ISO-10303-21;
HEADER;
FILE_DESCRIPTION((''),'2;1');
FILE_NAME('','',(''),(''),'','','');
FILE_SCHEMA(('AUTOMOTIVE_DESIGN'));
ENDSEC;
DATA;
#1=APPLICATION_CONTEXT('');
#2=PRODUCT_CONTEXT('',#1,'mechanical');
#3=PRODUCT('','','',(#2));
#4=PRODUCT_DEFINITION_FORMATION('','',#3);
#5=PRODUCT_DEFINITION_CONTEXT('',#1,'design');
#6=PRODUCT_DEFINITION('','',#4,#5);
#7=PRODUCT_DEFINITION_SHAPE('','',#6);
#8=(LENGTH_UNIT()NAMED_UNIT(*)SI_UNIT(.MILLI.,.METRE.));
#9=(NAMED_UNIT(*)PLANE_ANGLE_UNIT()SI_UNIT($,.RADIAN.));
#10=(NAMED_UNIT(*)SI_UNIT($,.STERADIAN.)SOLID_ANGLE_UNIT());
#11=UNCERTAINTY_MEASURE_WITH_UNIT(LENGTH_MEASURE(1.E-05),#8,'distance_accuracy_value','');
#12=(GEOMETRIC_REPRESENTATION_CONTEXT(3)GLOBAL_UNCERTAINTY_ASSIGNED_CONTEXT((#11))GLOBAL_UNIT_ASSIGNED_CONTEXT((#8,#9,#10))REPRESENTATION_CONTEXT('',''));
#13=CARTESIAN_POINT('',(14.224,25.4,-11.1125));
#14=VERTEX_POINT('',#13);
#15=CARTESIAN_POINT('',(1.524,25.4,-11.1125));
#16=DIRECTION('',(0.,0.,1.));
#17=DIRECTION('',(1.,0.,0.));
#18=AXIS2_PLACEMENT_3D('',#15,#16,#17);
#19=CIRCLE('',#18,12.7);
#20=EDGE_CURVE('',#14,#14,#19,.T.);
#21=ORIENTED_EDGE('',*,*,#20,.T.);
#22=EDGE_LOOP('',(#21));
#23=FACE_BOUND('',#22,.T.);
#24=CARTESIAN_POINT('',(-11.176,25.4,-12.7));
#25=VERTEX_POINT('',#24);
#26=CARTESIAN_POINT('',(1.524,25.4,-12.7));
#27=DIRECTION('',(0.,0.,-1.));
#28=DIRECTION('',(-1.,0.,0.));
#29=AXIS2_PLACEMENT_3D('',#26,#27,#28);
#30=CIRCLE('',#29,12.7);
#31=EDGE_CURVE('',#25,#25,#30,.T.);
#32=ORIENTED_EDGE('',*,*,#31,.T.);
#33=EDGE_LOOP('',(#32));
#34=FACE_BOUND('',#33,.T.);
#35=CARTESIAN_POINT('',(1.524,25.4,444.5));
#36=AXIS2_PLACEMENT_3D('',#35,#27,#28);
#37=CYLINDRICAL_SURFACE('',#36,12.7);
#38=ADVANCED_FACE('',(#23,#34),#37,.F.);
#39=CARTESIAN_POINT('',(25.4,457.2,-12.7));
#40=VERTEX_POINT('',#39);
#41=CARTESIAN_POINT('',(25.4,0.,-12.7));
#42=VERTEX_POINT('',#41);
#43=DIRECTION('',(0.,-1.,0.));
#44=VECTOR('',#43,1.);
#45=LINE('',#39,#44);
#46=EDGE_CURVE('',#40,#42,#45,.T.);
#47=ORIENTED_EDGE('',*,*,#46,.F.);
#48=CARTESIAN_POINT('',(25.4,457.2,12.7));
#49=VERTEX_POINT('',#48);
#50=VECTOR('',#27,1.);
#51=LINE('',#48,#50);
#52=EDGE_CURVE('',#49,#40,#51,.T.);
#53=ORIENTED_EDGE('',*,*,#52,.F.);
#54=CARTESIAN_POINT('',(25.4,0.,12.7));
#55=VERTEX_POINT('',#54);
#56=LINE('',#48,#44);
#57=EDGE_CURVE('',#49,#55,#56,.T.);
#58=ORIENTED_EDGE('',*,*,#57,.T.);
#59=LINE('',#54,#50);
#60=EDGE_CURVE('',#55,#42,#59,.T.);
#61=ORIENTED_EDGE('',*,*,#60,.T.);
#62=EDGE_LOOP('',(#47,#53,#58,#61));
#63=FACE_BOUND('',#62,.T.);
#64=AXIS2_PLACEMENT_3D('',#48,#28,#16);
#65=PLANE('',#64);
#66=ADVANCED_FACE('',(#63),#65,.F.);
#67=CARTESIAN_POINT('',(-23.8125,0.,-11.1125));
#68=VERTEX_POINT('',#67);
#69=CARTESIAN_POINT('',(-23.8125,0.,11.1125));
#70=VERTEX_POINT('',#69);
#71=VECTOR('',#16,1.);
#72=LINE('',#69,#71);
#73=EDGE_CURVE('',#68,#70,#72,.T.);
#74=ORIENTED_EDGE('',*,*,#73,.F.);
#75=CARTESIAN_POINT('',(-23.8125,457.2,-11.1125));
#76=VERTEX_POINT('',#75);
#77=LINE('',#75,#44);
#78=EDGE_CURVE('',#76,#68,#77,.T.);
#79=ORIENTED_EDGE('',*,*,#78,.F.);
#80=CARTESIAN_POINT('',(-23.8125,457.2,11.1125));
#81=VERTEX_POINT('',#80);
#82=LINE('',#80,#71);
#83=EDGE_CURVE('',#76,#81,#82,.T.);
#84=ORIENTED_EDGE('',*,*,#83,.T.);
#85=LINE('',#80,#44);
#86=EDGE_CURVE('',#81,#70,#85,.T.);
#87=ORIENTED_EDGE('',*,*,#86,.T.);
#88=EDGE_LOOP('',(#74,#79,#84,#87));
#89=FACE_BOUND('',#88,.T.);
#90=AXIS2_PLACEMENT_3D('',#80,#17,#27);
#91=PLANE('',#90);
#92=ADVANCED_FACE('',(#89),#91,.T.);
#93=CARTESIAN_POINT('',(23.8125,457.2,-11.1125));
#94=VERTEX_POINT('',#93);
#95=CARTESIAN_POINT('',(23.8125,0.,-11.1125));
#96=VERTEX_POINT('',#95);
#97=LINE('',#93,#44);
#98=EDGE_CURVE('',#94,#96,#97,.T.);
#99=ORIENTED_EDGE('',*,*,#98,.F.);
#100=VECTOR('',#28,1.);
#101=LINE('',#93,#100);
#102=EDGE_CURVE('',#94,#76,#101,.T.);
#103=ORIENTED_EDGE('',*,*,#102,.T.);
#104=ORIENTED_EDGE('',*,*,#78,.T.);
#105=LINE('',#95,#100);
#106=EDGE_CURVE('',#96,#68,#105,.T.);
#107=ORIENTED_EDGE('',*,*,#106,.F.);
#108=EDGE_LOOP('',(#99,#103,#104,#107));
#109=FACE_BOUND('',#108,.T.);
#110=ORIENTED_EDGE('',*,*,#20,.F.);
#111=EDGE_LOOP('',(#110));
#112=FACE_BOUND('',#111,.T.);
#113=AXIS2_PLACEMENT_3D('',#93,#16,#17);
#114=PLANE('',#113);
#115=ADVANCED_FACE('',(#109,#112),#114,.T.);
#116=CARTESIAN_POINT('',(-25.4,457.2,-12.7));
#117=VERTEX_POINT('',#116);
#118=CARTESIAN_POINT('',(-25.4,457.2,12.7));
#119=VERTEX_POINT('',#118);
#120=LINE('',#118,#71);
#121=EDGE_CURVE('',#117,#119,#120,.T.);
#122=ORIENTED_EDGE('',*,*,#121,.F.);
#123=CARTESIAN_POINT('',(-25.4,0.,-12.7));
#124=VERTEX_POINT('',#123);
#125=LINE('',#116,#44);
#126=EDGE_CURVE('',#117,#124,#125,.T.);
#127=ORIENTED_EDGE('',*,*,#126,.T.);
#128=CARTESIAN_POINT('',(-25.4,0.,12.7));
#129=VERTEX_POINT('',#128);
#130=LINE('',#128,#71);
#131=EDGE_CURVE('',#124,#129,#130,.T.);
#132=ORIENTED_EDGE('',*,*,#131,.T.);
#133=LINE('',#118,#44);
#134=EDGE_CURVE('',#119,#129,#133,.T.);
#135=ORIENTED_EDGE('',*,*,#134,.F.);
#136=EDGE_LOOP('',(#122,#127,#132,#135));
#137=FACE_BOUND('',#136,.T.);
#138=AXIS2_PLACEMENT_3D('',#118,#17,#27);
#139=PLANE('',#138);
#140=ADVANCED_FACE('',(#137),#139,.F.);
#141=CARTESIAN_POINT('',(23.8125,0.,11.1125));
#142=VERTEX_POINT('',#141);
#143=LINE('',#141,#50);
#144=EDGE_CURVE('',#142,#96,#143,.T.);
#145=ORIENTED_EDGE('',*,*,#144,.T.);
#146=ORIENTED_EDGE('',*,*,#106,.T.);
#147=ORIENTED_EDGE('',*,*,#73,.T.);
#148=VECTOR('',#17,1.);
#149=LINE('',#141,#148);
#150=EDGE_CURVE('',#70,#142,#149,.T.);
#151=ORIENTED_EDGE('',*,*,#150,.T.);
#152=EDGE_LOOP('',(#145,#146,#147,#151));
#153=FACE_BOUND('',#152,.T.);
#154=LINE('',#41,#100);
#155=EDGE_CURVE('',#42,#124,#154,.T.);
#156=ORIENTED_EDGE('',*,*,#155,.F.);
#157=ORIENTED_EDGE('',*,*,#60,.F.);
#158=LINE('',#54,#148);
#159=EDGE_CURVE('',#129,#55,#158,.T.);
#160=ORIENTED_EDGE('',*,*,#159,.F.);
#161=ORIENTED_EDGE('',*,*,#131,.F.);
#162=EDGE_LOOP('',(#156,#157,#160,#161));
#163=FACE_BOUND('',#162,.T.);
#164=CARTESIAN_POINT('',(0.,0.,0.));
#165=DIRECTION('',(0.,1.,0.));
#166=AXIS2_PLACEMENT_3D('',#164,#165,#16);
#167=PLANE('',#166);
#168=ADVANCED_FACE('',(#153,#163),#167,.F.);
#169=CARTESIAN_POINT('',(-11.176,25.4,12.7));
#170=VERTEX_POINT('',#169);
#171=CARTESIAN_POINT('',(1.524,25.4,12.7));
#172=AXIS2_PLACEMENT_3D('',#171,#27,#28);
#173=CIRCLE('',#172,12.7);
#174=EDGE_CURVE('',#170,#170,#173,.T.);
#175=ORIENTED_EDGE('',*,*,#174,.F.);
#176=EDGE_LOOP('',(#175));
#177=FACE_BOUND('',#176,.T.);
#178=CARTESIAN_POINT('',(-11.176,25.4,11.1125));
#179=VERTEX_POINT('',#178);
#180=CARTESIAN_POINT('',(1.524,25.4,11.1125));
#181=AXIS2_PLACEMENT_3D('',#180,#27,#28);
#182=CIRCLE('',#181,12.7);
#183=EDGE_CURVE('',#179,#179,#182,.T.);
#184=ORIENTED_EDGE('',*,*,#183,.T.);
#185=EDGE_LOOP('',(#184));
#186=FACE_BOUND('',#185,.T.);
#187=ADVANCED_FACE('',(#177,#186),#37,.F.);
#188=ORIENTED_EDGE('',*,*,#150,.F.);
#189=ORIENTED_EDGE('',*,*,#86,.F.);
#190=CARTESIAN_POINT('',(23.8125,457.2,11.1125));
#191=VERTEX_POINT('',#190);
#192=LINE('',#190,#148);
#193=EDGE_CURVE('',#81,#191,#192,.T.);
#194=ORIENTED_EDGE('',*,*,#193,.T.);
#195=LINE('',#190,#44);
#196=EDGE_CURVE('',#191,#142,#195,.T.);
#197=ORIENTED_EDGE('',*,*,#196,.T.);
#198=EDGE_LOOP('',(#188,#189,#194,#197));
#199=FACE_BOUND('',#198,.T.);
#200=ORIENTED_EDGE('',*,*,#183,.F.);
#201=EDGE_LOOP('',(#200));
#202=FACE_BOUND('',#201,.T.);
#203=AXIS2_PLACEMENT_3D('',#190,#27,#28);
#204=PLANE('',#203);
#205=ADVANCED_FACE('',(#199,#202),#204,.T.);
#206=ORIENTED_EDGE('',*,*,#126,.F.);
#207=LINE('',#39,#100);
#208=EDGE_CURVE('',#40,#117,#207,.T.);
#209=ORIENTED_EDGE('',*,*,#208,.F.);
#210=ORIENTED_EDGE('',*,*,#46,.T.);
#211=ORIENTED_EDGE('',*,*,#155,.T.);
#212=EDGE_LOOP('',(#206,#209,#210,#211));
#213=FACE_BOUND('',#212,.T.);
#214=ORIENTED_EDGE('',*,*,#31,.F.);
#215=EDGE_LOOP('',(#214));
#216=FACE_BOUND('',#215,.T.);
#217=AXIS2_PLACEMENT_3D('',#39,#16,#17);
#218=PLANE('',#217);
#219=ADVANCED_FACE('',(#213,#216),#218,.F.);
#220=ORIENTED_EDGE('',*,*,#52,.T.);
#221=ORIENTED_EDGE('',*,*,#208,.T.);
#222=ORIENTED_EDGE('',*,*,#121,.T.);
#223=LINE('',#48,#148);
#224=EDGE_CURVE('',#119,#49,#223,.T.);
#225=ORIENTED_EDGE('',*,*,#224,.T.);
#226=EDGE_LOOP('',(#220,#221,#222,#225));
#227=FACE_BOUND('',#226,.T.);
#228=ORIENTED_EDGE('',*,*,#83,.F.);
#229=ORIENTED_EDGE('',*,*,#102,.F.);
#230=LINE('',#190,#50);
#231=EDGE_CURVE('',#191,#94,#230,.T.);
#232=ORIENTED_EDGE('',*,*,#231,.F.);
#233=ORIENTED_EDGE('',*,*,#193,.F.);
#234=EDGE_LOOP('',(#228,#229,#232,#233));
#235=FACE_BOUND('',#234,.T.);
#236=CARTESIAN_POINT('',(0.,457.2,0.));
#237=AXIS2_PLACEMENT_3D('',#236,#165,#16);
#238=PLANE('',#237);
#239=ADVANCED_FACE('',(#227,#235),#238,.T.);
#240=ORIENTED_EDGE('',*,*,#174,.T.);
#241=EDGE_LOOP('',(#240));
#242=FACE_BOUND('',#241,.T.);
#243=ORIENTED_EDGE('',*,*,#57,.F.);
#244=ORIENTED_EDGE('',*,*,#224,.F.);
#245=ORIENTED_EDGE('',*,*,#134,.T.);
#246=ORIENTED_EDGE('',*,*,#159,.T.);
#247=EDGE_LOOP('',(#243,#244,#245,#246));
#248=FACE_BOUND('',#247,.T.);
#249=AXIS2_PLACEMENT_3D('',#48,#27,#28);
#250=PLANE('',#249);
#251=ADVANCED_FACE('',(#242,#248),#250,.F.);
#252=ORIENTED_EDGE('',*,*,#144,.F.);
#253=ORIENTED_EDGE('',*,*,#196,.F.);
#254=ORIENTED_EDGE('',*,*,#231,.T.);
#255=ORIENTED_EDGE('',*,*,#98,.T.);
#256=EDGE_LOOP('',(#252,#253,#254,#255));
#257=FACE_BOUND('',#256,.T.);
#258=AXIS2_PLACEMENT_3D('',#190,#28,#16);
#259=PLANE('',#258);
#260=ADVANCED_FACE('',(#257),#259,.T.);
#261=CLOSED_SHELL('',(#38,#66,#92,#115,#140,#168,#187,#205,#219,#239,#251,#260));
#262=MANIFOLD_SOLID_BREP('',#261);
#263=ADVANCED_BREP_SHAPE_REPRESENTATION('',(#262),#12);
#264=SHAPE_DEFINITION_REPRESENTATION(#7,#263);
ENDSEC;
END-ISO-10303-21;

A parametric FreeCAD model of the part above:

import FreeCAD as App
import Part
import Sketcher
Q = App.Units.Quantity

doc = App.newDocument("Part")
body = doc.addObject("PartDesign::Body", "Body")

# Sketch on XZ plane
sketch1 = body.newObject("Sketcher::SketchObject", "Sketch")
sketch1.AttachmentSupport = (doc.getObject("XZ_Plane"), [""])
sketch1.MapMode = "FlatFace"
sketch1.addGeometry([
    Part.LineSegment(App.Vector(-25, -13, 0), App.Vector(-25, 13, 0)),  # 0
    Part.LineSegment(App.Vector(-25, 13, 0), App.Vector(25, 13, 0)),  # 1
    Part.LineSegment(App.Vector(25, 13, 0), App.Vector(25, -13, 0)),  # 2
    Part.LineSegment(App.Vector(25, -13, 0), App.Vector(-25, -13, 0)),  # 3
    Part.LineSegment(App.Vector(24, 11, 0), App.Vector(-24, 11, 0)),  # 4
    Part.LineSegment(App.Vector(-24, 11, 0), App.Vector(-24, -11, 0)),  # 5
    Part.LineSegment(App.Vector(-24, -11, 0), App.Vector(24, -11, 0)),  # 6
    Part.LineSegment(App.Vector(24, -11, 0), App.Vector(24, 11, 0)),  # 7
], False)
sketch1.addConstraint([
    Sketcher.Constraint("Coincident", 0, 2, 1, 1),
    Sketcher.Constraint("Coincident", 1, 2, 2, 1),
    Sketcher.Constraint("Coincident", 2, 2, 3, 1),
    Sketcher.Constraint("Coincident", 3, 2, 0, 1),
    Sketcher.Constraint("Coincident", 4, 2, 5, 1),
    Sketcher.Constraint("Coincident", 5, 2, 6, 1),
    Sketcher.Constraint("Coincident", 6, 2, 7, 1),
    Sketcher.Constraint("Coincident", 7, 2, 4, 1),
    Sketcher.Constraint("Vertical", 0),
    Sketcher.Constraint("Horizontal", 1),
    Sketcher.Constraint("Vertical", 2),
    Sketcher.Constraint("Horizontal", 3),
    Sketcher.Constraint("Horizontal", 4),
    Sketcher.Constraint("Vertical", 5),
    Sketcher.Constraint("Horizontal", 6),
    Sketcher.Constraint("Vertical", 7),
    Sketcher.Constraint("Symmetric", 0, 2, 2, 2, -1, 1),
    Sketcher.Constraint("Symmetric", 4, 2, 6, 2, -1, 1),
    Sketcher.Constraint("DistanceX", 1, 1, 1, 2, Q("2 in")),
    Sketcher.Constraint("DistanceY", 0, 1, 0, 2, Q("1 in")),
    Sketcher.Constraint("DistanceX", 4, 2, 4, 1, Q("1.875 in")),
    Sketcher.Constraint("DistanceY", 5, 2, 5, 1, Q("0.875 in")),
])
pad1 = body.newObject("PartDesign::Pad", "Pad")
pad1.Profile = sketch1
pad1.Length = Q("18 in")
pad1.Reversed = True

# Sketch on XY plane
sketch2 = body.newObject("Sketcher::SketchObject", "Sketch001")
sketch2.AttachmentSupport = (doc.getObject("XY_Plane"), [""])
sketch2.MapMode = "FlatFace"
sketch2.AttachmentOffset = App.Placement(App.Vector(0, 0, -0.5 * 25.4), App.Rotation())
sketch2.addGeometry(Part.Circle(App.Vector(2, 25, 0), App.Vector(0, 0, 1), 13), False)
sketch2.addConstraint([
    Sketcher.Constraint("Diameter", 0, Q("1 in")),
    Sketcher.Constraint("DistanceY", -1, 1, 0, 3, Q("1 in")),
    Sketcher.Constraint("DistanceX", -1, 1, 0, 3, Q("0.06 in")),
])
pocket1 = body.newObject("PartDesign::Pocket", "Pocket")
pocket1.Profile = sketch2
pocket1.Length = Q("18 in")
pocket1.Reversed = True

doc.recompute()
